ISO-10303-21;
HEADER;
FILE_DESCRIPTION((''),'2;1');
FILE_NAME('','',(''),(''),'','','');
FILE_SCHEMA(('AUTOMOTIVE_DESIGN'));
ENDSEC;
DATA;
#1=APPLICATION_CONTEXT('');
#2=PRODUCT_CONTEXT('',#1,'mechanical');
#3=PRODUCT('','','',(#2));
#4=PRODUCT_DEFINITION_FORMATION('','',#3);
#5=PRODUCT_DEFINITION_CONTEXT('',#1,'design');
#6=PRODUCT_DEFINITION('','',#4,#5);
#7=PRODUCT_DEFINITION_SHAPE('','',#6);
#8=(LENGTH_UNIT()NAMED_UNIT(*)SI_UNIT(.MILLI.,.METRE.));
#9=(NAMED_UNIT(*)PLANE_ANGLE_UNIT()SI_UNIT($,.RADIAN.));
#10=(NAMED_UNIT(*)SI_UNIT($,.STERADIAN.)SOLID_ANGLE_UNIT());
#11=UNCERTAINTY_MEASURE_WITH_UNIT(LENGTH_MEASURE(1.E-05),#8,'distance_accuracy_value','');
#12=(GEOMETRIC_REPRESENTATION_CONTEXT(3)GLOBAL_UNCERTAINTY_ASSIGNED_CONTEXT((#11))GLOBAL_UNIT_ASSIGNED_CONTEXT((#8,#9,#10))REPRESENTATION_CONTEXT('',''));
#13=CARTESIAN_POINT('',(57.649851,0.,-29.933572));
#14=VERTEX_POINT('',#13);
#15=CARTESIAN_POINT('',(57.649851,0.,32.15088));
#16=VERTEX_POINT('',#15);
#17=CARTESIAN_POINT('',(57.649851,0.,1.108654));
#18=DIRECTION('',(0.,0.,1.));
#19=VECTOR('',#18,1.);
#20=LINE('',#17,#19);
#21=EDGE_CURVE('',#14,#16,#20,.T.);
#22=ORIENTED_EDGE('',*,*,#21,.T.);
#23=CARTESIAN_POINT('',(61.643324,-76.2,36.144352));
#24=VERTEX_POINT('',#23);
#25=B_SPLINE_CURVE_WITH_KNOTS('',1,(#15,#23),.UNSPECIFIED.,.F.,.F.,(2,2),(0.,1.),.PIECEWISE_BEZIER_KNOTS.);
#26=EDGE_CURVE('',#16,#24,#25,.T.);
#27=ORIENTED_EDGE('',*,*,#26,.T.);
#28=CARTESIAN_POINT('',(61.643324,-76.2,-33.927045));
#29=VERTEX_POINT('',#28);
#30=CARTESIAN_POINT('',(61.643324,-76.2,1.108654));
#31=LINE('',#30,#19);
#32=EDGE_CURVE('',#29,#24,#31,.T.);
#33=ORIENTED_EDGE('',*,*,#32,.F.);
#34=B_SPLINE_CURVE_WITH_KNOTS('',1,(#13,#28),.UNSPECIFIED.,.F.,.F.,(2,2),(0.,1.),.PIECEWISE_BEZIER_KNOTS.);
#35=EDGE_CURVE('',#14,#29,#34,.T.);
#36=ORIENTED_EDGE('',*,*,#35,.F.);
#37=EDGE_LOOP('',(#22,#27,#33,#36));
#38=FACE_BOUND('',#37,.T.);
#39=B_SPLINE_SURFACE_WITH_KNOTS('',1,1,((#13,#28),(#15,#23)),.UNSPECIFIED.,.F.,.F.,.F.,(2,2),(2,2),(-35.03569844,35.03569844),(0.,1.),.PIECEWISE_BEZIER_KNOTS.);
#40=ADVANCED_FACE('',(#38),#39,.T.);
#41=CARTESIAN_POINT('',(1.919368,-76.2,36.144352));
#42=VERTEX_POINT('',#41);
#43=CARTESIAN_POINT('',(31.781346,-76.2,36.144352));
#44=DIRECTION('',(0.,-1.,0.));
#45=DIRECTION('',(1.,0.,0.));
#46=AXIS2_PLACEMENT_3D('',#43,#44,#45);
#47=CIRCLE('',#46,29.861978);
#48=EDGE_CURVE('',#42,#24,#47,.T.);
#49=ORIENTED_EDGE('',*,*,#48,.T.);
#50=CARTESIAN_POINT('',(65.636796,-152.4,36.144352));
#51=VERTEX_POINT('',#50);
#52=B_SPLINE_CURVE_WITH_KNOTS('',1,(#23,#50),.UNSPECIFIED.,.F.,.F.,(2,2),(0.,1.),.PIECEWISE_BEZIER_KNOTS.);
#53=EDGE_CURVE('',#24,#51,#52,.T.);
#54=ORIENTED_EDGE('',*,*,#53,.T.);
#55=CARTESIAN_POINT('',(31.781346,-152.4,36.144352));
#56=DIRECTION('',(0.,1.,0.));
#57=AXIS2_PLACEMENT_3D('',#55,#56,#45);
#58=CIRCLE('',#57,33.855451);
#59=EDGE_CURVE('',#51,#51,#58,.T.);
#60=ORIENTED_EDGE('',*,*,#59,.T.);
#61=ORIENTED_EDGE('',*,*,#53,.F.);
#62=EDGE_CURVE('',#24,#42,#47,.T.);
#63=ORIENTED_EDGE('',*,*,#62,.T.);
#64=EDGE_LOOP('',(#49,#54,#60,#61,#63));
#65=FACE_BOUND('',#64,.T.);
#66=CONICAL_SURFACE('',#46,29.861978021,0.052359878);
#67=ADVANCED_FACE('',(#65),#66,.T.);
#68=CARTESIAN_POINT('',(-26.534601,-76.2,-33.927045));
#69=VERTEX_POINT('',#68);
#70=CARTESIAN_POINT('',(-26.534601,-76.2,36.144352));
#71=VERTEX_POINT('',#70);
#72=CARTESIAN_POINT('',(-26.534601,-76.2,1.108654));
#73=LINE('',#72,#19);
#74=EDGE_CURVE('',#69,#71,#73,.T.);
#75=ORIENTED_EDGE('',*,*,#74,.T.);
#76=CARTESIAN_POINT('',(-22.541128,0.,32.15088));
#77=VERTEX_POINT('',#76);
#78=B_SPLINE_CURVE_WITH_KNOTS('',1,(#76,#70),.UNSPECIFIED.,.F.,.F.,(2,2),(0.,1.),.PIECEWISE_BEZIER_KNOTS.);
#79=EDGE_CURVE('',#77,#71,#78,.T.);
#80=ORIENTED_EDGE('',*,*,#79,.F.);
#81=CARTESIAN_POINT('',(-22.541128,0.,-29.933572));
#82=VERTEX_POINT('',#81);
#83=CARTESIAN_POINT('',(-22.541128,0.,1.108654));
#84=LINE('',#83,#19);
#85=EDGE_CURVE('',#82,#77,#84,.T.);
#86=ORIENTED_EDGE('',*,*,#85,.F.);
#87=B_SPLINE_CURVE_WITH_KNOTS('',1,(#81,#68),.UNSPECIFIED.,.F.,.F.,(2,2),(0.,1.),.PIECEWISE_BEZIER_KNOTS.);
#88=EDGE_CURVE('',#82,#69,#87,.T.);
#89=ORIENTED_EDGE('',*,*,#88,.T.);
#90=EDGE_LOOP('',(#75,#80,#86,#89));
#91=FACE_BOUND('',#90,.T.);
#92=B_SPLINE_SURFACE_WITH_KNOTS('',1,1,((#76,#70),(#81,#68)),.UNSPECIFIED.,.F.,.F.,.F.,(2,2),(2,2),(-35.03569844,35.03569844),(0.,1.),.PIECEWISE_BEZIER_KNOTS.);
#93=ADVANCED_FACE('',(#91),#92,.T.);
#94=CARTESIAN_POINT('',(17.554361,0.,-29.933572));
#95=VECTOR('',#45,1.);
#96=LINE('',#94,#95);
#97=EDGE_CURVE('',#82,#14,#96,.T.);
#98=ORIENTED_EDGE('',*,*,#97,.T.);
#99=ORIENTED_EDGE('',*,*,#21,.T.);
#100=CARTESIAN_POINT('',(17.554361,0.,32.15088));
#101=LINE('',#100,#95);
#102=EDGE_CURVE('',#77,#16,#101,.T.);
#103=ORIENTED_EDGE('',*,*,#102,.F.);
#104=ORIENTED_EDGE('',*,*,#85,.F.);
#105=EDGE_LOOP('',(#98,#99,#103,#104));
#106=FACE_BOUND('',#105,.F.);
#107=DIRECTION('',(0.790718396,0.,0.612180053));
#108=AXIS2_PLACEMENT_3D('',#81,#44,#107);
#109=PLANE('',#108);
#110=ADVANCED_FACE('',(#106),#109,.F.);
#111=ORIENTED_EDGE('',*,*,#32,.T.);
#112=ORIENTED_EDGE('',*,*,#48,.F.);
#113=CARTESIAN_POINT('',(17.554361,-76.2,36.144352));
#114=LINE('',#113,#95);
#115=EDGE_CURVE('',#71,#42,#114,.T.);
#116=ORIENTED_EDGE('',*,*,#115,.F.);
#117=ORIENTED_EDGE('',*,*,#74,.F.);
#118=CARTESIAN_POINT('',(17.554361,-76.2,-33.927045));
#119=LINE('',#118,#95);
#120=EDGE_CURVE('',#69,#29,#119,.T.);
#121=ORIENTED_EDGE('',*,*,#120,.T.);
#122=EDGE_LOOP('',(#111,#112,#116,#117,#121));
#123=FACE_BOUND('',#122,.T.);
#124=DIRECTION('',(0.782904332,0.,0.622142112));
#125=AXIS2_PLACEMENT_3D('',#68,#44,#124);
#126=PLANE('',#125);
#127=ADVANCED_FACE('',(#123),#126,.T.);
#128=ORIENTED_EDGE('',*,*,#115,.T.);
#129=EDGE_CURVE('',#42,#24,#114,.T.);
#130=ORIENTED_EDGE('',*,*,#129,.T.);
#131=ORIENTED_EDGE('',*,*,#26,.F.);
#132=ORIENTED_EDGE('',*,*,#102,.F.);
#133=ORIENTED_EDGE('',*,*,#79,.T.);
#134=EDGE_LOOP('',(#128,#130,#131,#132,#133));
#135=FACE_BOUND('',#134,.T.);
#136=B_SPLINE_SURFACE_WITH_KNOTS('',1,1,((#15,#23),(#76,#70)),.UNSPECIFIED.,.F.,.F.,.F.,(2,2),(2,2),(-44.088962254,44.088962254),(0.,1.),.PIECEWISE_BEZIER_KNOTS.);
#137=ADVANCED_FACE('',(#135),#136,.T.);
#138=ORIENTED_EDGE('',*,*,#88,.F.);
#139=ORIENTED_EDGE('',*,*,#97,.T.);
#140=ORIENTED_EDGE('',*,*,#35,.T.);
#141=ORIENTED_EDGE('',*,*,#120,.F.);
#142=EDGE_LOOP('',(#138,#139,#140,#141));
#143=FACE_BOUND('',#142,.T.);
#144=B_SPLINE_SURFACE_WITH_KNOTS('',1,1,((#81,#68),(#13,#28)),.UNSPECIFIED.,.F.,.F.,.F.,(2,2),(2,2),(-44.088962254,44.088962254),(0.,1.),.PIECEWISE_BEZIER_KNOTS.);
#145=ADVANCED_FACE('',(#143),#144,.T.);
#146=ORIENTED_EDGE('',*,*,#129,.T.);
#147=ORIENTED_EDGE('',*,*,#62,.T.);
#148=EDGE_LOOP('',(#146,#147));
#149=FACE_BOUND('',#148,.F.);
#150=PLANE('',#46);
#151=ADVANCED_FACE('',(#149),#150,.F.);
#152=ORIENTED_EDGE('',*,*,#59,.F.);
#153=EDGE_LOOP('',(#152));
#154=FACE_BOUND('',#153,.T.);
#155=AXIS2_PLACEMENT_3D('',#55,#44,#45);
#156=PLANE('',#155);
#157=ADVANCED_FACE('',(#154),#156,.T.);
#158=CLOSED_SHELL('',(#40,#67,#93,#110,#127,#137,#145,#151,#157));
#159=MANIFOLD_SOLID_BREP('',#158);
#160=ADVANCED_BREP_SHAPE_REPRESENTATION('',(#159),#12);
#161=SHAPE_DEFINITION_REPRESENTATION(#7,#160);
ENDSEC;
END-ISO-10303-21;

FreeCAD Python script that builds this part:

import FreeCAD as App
import Part
import Sketcher
from FreeCAD import Vector

doc = App.newDocument("Part")
params = doc.addObject("Spreadsheet::Sheet", "Params")
for row, (alias, value) in enumerate([
    ("pad1_length", "3 in"),
    ("pad1_taper", "3 deg"),
    ("pad2_length", "3 in"),
    ("pad2_taper", "3 deg"),
], start=1):
    params.set(f"A{row}", alias)
    params.set(f"B{row}", "=" + value)
    params.setAlias(f"B{row}", alias)

body = doc.addObject("PartDesign::Body", "Body")

# Sketch on XZ plane
sketch1 = body.newObject("Sketcher::SketchObject", "Sketch")
sketch1.AttachmentSupport = (doc.getObject("XZ_Plane"), [""])
sketch1.MapMode = "FlatFace"
sketch1.addGeometry([
    Part.LineSegment(Vector(-23, 32, 0), Vector(-23, -30, 0)),
    Part.LineSegment(Vector(-23, -30, 0), Vector(58, -30, 0)),
    Part.LineSegment(Vector(58, -30, 0), Vector(58, 32, 0)),
    Part.LineSegment(Vector(58, 32, 0), Vector(-23, 32, 0)),
], False)
sketch1.addConstraint([
    Sketcher.Constraint("Coincident", 0, 2, 1, 1),
    Sketcher.Constraint("Coincident", 1, 2, 2, 1),
    Sketcher.Constraint("Coincident", 2, 2, 3, 1),
    Sketcher.Constraint("Coincident", 3, 2, 0, 1),
    Sketcher.Constraint("Vertical", 0),
    Sketcher.Constraint("Horizontal", 1),
    Sketcher.Constraint("Vertical", 2),
    Sketcher.Constraint("Horizontal", 3),
    Sketcher.Constraint("DistanceX", 1, 1, 1, 2, 80.190979),
    Sketcher.Constraint("DistanceY", 0, 2, 0, 1, 62.084451),
    Sketcher.Constraint("DistanceX", 0, 2, -1, 1, 22.541128),
    Sketcher.Constraint("DistanceY", 0, 2, -1, 1, 29.933572),
])
pad1 = body.newObject("PartDesign::Pad", "Pad")
pad1.Profile = sketch1
pad1.setExpression("Length", "Params.pad1_length")
pad1.setExpression("TaperAngle", "Params.pad1_taper")

# Sketch on XZ plane
sketch2 = body.newObject("Sketcher::SketchObject", "Sketch001")
sketch2.AttachmentSupport = (doc.getObject("XZ_Plane"), [""])
sketch2.MapMode = "FlatFace"
sketch2.AttachmentOffset = App.Placement(Vector(0, 0, 3 * 25.4), App.Rotation())
sketch2.addGeometry(Part.Circle(Vector(32, 36, 0), Vector(0, 0, 1), 30), False)
sketch2.addConstraint([
    Sketcher.Constraint("Diameter", 0, 59.723956),
    Sketcher.Constraint("DistanceX", -1, 1, 0, 3, 31.781346),
    Sketcher.Constraint("DistanceY", -1, 1, 0, 3, 36.144352),
])
pad2 = body.newObject("PartDesign::Pad", "Pad001")
pad2.Profile = sketch2
pad2.setExpression("Length", "Params.pad2_length")
pad2.setExpression("TaperAngle", "Params.pad2_taper")

doc.recompute()
